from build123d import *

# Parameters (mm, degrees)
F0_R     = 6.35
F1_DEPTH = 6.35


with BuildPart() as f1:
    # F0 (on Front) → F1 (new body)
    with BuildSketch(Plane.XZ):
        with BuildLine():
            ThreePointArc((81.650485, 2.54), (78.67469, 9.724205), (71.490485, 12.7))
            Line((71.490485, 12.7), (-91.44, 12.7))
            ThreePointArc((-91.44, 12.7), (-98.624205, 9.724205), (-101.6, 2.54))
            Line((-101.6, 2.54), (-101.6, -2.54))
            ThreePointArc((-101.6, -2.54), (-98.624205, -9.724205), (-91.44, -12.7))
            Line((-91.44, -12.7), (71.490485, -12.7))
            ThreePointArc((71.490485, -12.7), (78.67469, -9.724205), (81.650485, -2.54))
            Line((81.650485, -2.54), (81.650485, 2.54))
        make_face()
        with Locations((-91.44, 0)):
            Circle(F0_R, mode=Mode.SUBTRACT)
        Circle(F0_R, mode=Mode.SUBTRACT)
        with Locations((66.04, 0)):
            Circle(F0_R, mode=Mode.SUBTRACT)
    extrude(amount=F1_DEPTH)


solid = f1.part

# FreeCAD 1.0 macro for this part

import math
import FreeCAD as App
import Part
import Sketcher

V = App.Vector
Q = App.Units.Quantity

doc = App.newDocument("Part")
params = doc.addObject("Spreadsheet::Sheet", "Params")
for row, (alias, value) in enumerate([
    ("sketch1_diameter", "0.5 in"),
    ("sketch1_radius", "0.4 in"),
    ("sketch1_height", "0.2 in"),
    ("pad1_length", "0.25 in"),
], start=1):
    params.set(f"A{row}", alias)
    params.set(f"B{row}", "=" + value)
    params.setAlias(f"B{row}", alias)

body = doc.addObject("PartDesign::Body", "Body")

# Sketch on XZ plane
sketch1 = body.newObject("Sketcher::SketchObject", "Sketch")
sketch1.AttachmentSupport = (doc.getObject("XZ_Plane"), [""])
sketch1.MapMode = "FlatFace"
sketch1.addGeometry([
    Part.ArcOfCircle(Part.Circle(V(71.490485, 2.54, 0), V(0, 0, 1), 10.16), math.radians(-0.000002), math.radians(90.000002)),  # 0
    Part.LineSegment(V(71.490485, 12.7, 0), V(-91.44, 12.7, 0)),  # 1
    Part.ArcOfCircle(Part.Circle(V(-91.44, 2.54, 0), V(0, 0, 1), 10.16), math.radians(89.999998), math.radians(180.000002)),  # 2
    Part.LineSegment(V(-101.6, 2.54, 0), V(-101.6, -2.54, 0)),  # 3
    Part.ArcOfCircle(Part.Circle(V(-91.44, -2.54, 0), V(0, 0, 1), 10.16), math.radians(179.999998), math.radians(270.000002)),  # 4
    Part.LineSegment(V(-91.44, -12.7, 0), V(71.490485, -12.7, 0)),  # 5
    Part.ArcOfCircle(Part.Circle(V(71.490485, -2.54, 0), V(0, 0, 1), 10.16), math.radians(-90.000002), math.radians(0.000002)),  # 6
    Part.LineSegment(V(81.650485, -2.54, 0), V(81.650485, 2.54, 0)),  # 7
    Part.Circle(V(-91.44, 0, 0), V(0, 0, 1), 6.35),  # 8
    Part.Circle(V(0, 0, 0), V(0, 0, 1), 6.35),  # 9
    Part.Circle(V(66.04, 0, 0), V(0, 0, 1), 6.35),  # 10
], False)
sketch1.addConstraint([
    Sketcher.Constraint("Tangent", 0, 2, 1, 1),
    Sketcher.Constraint("Tangent", 1, 2, 2, 1),
    Sketcher.Constraint("Tangent", 2, 2, 3, 1),
    Sketcher.Constraint("Tangent", 3, 2, 4, 1),
    Sketcher.Constraint("Tangent", 4, 2, 5, 1),
    Sketcher.Constraint("Tangent", 5, 2, 6, 1),
    Sketcher.Constraint("Tangent", 6, 2, 7, 1),
    Sketcher.Constraint("Tangent", 7, 2, 0, 1),
    Sketcher.Constraint("Horizontal", 1),
    Sketcher.Constraint("Vertical", 3),
    Sketcher.Constraint("Horizontal", 5),
    Sketcher.Constraint("Vertical", 7),
    Sketcher.Constraint("Coincident", 9, 3, -1, 1),
    Sketcher.Constraint("Equal", 0, 2),
    Sketcher.Constraint("Equal", 2, 4),
    Sketcher.Constraint("Equal", 4, 6),
    Sketcher.Constraint("Equal", 8, 9),
    Sketcher.Constraint("Equal", 9, 10),
    Sketcher.Constraint("PointOnObject", 8, 3, -1),
    Sketcher.Constraint("PointOnObject", 10, 3, -1),
    Sketcher.Constraint("Vertical", 4, 3, 8, 3),
    Sketcher.Constraint("Diameter", 8, Q("0.5 in")),
    Sketcher.Constraint("Radius", 0, Q("0.4 in")),
    Sketcher.Constraint("DistanceY", 3, 2, 3, 1, Q("0.2 in")),
    Sketcher.Constraint("DistanceX", 2, 2, -1, 1, Q("4 in")),
    Sketcher.Constraint("DistanceY", -1, 1, 0, 3, Q("0.1 in")),
    Sketcher.Constraint("DistanceX", -1, 1, 10, 3, Q("2.6 in")),
    Sketcher.Constraint("DistanceX", 1, 2, 1, 1, Q("162.930485 mm")),
])
sketch1.setExpression("Constraints[21]", "Params.sketch1_diameter")
sketch1.setExpression("Constraints[22]", "Params.sketch1_radius")
sketch1.setExpression("Constraints[23]", "Params.sketch1_height")
pad1 = body.newObject("PartDesign::Pad", "Pad")
pad1.Profile = sketch1
pad1.setExpression("Length", "Params.pad1_length")

doc.recompute()
